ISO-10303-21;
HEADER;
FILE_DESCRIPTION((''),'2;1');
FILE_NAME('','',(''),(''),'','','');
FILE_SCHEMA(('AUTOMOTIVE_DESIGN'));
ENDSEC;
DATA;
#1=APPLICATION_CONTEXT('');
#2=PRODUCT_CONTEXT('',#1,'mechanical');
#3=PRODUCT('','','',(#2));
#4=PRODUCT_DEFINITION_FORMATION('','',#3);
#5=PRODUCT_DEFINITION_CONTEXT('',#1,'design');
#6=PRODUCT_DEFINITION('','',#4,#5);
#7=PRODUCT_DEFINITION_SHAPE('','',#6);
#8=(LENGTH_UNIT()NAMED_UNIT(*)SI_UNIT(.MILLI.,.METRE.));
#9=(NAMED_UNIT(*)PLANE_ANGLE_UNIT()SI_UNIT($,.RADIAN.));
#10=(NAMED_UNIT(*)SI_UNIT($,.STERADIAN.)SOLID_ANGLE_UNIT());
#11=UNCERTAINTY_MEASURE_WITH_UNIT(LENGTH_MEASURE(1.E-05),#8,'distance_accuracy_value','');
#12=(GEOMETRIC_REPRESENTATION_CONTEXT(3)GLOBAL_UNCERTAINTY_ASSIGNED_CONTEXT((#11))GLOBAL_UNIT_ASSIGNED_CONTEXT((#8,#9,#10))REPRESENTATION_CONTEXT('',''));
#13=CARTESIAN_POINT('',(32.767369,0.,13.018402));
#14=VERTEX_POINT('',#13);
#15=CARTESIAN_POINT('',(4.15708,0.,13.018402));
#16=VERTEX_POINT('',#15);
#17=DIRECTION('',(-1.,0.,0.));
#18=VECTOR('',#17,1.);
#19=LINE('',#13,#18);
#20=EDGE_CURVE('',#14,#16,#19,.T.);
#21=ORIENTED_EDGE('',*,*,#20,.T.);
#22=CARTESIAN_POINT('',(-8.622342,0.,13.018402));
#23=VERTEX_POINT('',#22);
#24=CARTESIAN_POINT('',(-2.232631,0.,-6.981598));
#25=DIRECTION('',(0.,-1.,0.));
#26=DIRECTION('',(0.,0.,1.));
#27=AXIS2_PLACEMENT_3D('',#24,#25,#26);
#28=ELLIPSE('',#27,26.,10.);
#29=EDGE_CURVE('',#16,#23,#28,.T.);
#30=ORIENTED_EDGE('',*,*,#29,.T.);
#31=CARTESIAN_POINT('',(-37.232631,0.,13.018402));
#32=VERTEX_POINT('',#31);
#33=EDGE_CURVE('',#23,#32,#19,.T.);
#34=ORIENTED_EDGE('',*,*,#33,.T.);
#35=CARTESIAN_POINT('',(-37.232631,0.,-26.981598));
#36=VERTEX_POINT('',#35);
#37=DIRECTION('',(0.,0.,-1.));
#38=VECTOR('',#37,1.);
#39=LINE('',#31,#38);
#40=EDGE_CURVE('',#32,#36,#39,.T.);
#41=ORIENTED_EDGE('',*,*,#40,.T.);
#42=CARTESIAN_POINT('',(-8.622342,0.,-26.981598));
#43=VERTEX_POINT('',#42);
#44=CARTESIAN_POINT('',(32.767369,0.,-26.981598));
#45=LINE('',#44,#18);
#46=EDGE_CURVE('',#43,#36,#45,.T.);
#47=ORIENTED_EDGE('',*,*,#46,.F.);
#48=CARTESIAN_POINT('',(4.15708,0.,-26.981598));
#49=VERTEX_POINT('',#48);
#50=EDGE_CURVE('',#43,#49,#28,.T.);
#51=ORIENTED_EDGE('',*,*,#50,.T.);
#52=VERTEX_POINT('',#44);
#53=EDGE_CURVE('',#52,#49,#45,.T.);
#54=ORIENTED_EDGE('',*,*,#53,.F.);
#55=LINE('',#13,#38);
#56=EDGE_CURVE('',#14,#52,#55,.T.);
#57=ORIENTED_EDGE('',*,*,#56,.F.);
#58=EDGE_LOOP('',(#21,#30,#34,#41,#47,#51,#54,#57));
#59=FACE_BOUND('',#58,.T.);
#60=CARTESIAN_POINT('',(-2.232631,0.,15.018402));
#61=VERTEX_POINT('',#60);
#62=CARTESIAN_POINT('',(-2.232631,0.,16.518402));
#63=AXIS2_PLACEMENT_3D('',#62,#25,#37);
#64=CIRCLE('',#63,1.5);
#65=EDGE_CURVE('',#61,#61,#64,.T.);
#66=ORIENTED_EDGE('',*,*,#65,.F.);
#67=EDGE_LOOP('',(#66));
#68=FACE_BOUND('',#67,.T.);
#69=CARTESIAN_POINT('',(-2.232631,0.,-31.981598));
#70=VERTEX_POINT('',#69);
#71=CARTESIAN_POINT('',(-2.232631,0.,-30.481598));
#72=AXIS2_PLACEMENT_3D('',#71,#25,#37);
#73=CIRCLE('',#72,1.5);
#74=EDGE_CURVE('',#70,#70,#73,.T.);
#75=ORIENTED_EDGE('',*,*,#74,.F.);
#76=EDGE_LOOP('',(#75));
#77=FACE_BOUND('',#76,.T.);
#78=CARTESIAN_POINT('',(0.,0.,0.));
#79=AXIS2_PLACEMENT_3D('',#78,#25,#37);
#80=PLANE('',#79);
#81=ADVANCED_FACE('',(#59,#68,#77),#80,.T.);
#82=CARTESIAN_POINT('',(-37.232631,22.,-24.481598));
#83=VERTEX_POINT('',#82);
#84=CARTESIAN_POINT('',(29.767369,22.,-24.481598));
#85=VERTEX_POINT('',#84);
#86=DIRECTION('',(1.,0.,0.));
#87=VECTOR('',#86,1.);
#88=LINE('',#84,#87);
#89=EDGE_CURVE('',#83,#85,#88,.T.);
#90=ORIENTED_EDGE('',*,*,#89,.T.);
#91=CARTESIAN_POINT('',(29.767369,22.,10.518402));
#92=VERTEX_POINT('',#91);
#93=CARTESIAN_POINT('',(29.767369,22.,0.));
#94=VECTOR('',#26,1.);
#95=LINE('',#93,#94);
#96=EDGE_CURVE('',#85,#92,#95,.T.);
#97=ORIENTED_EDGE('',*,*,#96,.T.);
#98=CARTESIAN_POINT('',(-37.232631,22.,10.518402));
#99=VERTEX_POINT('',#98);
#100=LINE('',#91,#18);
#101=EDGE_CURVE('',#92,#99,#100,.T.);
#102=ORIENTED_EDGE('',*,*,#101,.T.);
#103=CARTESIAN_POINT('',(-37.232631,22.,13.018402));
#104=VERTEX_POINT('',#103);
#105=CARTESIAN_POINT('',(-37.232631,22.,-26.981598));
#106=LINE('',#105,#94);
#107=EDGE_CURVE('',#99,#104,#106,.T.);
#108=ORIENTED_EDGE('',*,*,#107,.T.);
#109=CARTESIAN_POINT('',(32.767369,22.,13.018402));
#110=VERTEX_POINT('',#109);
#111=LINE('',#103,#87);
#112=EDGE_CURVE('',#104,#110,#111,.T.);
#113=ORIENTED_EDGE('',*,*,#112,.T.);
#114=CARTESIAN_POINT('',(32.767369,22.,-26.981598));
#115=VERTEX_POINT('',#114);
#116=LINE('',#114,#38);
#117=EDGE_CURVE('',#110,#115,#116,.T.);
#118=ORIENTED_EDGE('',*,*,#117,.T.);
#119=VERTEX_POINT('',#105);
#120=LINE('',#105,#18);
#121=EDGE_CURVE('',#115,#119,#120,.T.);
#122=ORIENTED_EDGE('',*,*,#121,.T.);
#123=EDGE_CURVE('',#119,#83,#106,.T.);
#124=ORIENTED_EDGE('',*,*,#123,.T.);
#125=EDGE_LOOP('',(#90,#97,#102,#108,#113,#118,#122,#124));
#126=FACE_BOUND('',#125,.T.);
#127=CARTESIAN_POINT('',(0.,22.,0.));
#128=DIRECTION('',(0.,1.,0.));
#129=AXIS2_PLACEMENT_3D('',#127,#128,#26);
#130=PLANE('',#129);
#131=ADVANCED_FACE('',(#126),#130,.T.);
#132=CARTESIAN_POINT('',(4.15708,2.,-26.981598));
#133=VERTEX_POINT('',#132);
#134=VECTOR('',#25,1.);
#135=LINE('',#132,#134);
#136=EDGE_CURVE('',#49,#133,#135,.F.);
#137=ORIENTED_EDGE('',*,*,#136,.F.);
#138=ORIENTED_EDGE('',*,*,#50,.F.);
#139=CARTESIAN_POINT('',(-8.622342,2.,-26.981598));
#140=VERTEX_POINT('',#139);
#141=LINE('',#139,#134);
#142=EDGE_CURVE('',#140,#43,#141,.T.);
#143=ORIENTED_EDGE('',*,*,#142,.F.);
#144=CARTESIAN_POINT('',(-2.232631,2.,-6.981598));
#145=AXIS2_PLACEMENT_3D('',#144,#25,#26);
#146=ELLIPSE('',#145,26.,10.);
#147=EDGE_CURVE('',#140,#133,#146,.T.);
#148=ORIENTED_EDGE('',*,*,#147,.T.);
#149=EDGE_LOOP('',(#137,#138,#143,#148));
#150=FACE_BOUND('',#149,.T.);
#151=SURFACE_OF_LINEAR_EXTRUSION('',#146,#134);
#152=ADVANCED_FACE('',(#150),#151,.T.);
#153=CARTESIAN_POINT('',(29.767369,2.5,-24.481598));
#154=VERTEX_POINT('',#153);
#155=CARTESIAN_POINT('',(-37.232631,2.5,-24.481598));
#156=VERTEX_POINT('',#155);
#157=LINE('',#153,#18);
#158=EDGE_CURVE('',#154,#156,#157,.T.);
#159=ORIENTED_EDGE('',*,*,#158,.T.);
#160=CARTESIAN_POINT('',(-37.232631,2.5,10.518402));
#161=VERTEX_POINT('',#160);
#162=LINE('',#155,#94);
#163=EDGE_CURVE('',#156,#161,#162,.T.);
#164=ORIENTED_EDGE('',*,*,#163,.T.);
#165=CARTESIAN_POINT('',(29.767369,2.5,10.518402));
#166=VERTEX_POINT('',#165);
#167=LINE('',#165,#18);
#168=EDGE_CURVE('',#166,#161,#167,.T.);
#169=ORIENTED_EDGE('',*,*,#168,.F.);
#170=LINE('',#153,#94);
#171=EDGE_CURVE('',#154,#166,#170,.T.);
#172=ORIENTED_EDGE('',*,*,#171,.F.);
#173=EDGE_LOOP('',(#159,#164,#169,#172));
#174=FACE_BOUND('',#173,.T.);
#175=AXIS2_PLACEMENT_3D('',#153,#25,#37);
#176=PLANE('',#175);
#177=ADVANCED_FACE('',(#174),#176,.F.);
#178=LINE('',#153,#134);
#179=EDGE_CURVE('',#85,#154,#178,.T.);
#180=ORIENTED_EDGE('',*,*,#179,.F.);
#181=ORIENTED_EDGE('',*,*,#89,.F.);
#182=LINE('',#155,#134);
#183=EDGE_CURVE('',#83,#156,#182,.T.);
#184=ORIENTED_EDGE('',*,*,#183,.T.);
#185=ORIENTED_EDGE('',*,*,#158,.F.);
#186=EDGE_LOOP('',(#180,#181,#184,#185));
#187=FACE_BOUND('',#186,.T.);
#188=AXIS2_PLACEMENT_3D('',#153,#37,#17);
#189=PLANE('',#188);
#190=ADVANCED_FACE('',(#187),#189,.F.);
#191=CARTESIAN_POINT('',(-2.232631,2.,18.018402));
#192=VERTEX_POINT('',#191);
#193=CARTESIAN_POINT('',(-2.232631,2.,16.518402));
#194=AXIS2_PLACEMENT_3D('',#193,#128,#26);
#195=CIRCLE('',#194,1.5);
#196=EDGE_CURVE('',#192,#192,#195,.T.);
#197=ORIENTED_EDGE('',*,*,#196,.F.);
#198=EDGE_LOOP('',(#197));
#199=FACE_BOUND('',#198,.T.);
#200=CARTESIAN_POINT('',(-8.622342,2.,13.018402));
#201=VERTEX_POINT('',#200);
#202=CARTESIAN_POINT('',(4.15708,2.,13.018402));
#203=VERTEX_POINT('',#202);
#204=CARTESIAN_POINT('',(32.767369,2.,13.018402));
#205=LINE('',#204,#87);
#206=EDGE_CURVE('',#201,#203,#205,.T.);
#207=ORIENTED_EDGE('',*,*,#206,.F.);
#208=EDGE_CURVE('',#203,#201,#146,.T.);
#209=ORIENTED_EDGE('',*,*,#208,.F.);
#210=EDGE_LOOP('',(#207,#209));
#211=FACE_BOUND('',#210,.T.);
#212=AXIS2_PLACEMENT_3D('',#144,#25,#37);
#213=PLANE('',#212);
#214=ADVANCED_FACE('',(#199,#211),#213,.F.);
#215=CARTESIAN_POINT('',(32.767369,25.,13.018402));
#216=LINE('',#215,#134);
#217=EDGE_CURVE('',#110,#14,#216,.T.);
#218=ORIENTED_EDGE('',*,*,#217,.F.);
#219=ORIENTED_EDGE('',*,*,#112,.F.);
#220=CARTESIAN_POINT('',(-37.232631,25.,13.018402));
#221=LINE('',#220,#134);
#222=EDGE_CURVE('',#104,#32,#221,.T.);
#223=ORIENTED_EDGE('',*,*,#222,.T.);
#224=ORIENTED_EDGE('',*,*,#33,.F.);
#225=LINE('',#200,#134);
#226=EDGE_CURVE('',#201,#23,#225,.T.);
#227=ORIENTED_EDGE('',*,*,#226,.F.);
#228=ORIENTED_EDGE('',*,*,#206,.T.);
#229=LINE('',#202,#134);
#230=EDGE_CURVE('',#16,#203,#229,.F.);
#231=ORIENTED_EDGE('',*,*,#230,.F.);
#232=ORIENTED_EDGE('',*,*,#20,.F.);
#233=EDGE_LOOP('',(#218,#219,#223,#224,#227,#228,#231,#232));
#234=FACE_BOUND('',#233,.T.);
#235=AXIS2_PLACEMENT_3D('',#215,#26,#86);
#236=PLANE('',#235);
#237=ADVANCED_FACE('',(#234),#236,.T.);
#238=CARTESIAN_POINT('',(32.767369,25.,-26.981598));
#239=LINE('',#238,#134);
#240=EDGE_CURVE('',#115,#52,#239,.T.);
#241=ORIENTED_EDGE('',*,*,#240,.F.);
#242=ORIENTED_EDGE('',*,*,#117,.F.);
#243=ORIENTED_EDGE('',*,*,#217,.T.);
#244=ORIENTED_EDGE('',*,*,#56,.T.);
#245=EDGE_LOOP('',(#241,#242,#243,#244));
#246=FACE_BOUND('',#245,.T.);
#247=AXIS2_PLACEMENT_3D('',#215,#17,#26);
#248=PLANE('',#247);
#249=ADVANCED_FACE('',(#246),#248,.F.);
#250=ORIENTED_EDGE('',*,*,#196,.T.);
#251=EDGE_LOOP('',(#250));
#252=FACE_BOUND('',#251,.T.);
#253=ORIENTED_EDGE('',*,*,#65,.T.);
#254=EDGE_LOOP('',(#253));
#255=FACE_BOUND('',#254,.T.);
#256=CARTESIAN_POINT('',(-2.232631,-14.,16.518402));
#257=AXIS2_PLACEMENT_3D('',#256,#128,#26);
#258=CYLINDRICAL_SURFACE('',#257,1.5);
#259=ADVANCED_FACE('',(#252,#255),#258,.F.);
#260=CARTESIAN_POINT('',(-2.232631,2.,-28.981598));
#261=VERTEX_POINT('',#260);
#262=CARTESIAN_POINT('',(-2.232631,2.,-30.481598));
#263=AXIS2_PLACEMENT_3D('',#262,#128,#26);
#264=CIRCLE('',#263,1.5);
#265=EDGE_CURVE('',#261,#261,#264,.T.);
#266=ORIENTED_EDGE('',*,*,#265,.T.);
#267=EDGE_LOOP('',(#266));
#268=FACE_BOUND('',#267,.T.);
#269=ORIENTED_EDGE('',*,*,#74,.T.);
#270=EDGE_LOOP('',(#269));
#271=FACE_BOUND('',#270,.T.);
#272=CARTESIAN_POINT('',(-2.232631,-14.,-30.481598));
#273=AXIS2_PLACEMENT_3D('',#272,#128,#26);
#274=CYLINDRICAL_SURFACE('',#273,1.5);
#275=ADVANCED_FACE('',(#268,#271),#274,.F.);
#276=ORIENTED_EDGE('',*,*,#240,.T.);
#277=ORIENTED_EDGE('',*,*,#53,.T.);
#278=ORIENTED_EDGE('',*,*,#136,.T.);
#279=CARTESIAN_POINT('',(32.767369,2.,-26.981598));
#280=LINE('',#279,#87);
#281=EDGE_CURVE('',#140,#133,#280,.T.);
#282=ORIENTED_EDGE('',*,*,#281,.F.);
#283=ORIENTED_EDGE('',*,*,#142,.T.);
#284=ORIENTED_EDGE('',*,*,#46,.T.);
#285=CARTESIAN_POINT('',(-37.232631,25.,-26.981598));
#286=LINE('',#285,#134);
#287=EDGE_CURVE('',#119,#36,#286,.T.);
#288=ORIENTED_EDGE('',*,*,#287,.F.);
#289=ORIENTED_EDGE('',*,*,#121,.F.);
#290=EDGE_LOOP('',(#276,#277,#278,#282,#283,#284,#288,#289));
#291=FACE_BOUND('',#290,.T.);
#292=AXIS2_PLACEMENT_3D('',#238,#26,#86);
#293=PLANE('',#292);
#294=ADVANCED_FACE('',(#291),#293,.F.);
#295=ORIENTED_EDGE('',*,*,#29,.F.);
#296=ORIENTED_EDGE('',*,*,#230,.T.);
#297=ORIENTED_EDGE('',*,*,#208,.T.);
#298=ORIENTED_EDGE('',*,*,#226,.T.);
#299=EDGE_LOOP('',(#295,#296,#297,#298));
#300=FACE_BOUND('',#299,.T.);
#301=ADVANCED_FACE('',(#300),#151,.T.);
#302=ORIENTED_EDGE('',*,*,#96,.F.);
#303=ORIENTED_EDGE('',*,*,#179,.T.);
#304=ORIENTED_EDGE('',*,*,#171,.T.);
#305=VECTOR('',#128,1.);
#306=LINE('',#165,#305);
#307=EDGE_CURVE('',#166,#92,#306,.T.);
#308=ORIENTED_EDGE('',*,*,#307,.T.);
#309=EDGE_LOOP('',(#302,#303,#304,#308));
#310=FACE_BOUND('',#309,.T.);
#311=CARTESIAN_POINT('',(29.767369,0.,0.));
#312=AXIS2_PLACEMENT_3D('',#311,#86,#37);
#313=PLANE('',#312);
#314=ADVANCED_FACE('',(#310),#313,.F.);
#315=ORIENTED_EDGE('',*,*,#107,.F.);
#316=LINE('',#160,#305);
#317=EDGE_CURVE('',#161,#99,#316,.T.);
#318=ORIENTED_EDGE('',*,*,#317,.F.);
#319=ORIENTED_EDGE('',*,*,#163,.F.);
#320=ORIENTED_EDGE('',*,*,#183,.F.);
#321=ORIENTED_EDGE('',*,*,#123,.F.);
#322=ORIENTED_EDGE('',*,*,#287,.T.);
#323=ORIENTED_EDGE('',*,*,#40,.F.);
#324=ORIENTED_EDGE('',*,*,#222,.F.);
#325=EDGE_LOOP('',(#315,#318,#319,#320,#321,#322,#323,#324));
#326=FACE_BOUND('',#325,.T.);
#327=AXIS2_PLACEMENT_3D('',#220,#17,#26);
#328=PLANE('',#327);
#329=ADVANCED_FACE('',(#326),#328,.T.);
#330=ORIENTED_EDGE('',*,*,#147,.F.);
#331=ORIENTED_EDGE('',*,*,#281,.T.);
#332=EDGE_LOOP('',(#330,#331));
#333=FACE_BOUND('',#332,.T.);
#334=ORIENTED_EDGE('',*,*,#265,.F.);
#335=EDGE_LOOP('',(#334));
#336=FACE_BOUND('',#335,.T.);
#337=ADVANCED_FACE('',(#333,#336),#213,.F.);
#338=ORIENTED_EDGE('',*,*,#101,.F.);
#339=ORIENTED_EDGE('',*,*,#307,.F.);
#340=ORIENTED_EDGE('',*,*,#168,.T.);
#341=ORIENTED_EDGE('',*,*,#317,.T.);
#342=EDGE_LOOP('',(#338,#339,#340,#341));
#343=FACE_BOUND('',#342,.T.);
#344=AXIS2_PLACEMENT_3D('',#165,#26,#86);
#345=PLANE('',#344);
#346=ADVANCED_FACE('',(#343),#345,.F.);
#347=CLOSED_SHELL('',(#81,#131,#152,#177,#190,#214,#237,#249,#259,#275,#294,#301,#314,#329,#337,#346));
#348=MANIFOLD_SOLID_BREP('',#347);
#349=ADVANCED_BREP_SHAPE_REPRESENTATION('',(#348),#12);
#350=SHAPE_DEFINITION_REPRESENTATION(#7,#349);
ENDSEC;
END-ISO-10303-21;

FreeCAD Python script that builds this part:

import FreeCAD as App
import Part
import Sketcher
from FreeCAD import Vector


def add_polygon(sketch, points):
    """Adds a closed chain of lines whose ends are joined by coincident constraints."""
    first, n = sketch.GeometryCount, len(points)
    for a, b in zip(points, points[1:] + points[:1]):
        sketch.addGeometry(Part.LineSegment(App.Vector(*a, 0), App.Vector(*b, 0)), False)
    for i in range(n):
        sketch.addConstraint(Sketcher.Constraint("Coincident", first + i, 2, first + (i + 1) % n, 1))

doc = App.newDocument("Part")
params = doc.addObject("Spreadsheet::Sheet", "Params")
for row, (alias, value) in enumerate([
    ("sketch1_width", "70 mm"),
    ("sketch1_height", "40 mm"),
    ("pad1_length", "25 mm"),
    ("sketch2_width", "20 mm"),
    ("sketch2_height", "35 mm"),
    ("pocket1_length", "67 mm"),
    ("sketch3_width", "70 mm"),
    ("sketch3_height", "40 mm"),
    ("pocket2_length", "3 mm"),
    ("pad2_length", "2 mm"),
    ("sketch5_diameter", "3 mm"),
    ("pocket3_length", "16 mm"),
], start=1):
    params.set(f"A{row}", alias)
    params.set(f"B{row}", "=" + value)
    params.setAlias(f"B{row}", alias)

body = doc.addObject("PartDesign::Body", "Body")

# Sketch on XZ plane
sketch1 = body.newObject("Sketcher::SketchObject", "Sketch")
sketch1.AttachmentSupport = (doc.getObject("XZ_Plane"), [""])
sketch1.MapMode = "FlatFace"
add_polygon(sketch1, [(-37, -27), (-37, 13), (33, 13), (33, -27)])  # lines 0-3
sketch1.addConstraint([
    Sketcher.Constraint("Vertical", 0),
    Sketcher.Constraint("Horizontal", 1),
    Sketcher.Constraint("Vertical", 2),
    Sketcher.Constraint("Horizontal", 3),
    Sketcher.Constraint("DistanceX", 1, 1, 1, 2, 70.0),
    Sketcher.Constraint("DistanceY", 0, 1, 0, 2, 40.0),
    Sketcher.Constraint("DistanceX", 0, 2, -1, 1, 37.232631),
    Sketcher.Constraint("DistanceY", -1, 1, 0, 2, 13.018402),
])
sketch1.setExpression("Constraints[8]", "Params.sketch1_width")
sketch1.setExpression("Constraints[9]", "Params.sketch1_height")
pad1 = body.newObject("PartDesign::Pad", "Pad")
pad1.Profile = sketch1
pad1.setExpression("Length", "Params.pad1_length")
pad1.Reversed = True

# Sketch on YZ plane
sketch2 = body.newObject("Sketcher::SketchObject", "Sketch001")
sketch2.AttachmentSupport = (doc.getObject("YZ_Plane"), [""])
sketch2.MapMode = "FlatFace"
sketch2.AttachmentOffset = App.Placement(Vector(0, 0, -37.232631), App.Rotation())
add_polygon(sketch2, [(22, -24), (2, -24), (2, 11), (22, 11)])  # lines 0-3
sketch2.addConstraint([
    Sketcher.Constraint("Horizontal", 0),
    Sketcher.Constraint("Vertical", 1),
    Sketcher.Constraint("Horizontal", 2),
    Sketcher.Constraint("Vertical", 3),
    Sketcher.Constraint("DistanceX", 0, 2, 0, 1, 20.0),
    Sketcher.Constraint("DistanceY", 1, 1, 1, 2, 35.0),
    Sketcher.Constraint("DistanceX", -1, 1, 0, 2, 2.5),
    Sketcher.Constraint("DistanceY", 0, 2, -1, 1, 24.481598),
])
sketch2.setExpression("Constraints[8]", "Params.sketch2_width")
sketch2.setExpression("Constraints[9]", "Params.sketch2_height")
pocket1 = body.newObject("PartDesign::Pocket", "Pocket")
pocket1.Profile = sketch2
pocket1.setExpression("Length", "Params.pocket1_length")
pocket1.Reversed = True

# Sketch on XZ plane
sketch3 = body.newObject("Sketcher::SketchObject", "Sketch002")
sketch3.AttachmentSupport = (doc.getObject("XZ_Plane"), [""])
sketch3.MapMode = "FlatFace"
sketch3.AttachmentOffset = App.Placement(Vector(0, 0, -25), App.Rotation())
add_polygon(sketch3, [(-37, -27), (-37, 13), (33, 13), (33, -27)])  # lines 0-3
sketch3.addConstraint([
    Sketcher.Constraint("Vertical", 0),
    Sketcher.Constraint("Horizontal", 1),
    Sketcher.Constraint("Vertical", 2),
    Sketcher.Constraint("Horizontal", 3),
    Sketcher.Constraint("DistanceX", 1, 1, 1, 2, 70.0),
    Sketcher.Constraint("DistanceY", 0, 1, 0, 2, 40.0),
    Sketcher.Constraint("DistanceX", 0, 2, -1, 1, 37.232631),
    Sketcher.Constraint("DistanceY", -1, 1, 0, 2, 13.018402),
])
sketch3.setExpression("Constraints[8]", "Params.sketch3_width")
sketch3.setExpression("Constraints[9]", "Params.sketch3_height")
pocket2 = body.newObject("PartDesign::Pocket", "Pocket001")
pocket2.Profile = sketch3
pocket2.setExpression("Length", "Params.pocket2_length")
pocket2.Reversed = True

# Sketch on XZ plane
sketch4 = body.newObject("Sketcher::SketchObject", "Sketch003")
sketch4.AttachmentSupport = (doc.getObject("XZ_Plane"), [""])
sketch4.MapMode = "FlatFace"
sketch4.addGeometry(Part.Ellipse(Vector(-2.232631, 19.018402, 0), Vector(-12.232631, -6.981598, 0), Vector(-2.232631, -6.981598, 0)), False)
sketch4.addConstraint(Sketcher.Constraint("Block", 0))
pad2 = body.newObject("PartDesign::Pad", "Pad001")
pad2.Profile = sketch4
pad2.setExpression("Length", "Params.pad2_length")
pad2.Reversed = True

# Sketch on XZ plane
sketch5 = body.newObject("Sketcher::SketchObject", "Sketch004")
sketch5.AttachmentSupport = (doc.getObject("XZ_Plane"), [""])
sketch5.MapMode = "FlatFace"
sketch5.AttachmentOffset = App.Placement(Vector(0, 0, -2), App.Rotation())
sketch5.addGeometry([
    Part.Circle(Vector(-2.2, 16.5, 0), Vector(0, 0, 1), 1.5),
    Part.Circle(Vector(-2.2, -30.5, 0), Vector(0, 0, 1), 1.5),
], False)
sketch5.addConstraint([
    Sketcher.Constraint("Equal", 0, 1),
    Sketcher.Constraint("Vertical", 0, 3, 1, 3),
    Sketcher.Constraint("Diameter", 0, 3.0),
    Sketcher.Constraint("DistanceY", 1, 3, 0, 3, 47.0),
    Sketcher.Constraint("DistanceX", 0, 3, -1, 1, 2.232631),
    Sketcher.Constraint("DistanceY", -1, 1, 0, 3, 16.518402),
])
sketch5.setExpression("Constraints[2]", "Params.sketch5_diameter")
pocket3 = body.newObject("PartDesign::Pocket", "Pocket002")
pocket3.Profile = sketch5
pocket3.setExpression("Length", "Params.pocket3_length")
pocket3.Reversed = True

doc.recompute()
